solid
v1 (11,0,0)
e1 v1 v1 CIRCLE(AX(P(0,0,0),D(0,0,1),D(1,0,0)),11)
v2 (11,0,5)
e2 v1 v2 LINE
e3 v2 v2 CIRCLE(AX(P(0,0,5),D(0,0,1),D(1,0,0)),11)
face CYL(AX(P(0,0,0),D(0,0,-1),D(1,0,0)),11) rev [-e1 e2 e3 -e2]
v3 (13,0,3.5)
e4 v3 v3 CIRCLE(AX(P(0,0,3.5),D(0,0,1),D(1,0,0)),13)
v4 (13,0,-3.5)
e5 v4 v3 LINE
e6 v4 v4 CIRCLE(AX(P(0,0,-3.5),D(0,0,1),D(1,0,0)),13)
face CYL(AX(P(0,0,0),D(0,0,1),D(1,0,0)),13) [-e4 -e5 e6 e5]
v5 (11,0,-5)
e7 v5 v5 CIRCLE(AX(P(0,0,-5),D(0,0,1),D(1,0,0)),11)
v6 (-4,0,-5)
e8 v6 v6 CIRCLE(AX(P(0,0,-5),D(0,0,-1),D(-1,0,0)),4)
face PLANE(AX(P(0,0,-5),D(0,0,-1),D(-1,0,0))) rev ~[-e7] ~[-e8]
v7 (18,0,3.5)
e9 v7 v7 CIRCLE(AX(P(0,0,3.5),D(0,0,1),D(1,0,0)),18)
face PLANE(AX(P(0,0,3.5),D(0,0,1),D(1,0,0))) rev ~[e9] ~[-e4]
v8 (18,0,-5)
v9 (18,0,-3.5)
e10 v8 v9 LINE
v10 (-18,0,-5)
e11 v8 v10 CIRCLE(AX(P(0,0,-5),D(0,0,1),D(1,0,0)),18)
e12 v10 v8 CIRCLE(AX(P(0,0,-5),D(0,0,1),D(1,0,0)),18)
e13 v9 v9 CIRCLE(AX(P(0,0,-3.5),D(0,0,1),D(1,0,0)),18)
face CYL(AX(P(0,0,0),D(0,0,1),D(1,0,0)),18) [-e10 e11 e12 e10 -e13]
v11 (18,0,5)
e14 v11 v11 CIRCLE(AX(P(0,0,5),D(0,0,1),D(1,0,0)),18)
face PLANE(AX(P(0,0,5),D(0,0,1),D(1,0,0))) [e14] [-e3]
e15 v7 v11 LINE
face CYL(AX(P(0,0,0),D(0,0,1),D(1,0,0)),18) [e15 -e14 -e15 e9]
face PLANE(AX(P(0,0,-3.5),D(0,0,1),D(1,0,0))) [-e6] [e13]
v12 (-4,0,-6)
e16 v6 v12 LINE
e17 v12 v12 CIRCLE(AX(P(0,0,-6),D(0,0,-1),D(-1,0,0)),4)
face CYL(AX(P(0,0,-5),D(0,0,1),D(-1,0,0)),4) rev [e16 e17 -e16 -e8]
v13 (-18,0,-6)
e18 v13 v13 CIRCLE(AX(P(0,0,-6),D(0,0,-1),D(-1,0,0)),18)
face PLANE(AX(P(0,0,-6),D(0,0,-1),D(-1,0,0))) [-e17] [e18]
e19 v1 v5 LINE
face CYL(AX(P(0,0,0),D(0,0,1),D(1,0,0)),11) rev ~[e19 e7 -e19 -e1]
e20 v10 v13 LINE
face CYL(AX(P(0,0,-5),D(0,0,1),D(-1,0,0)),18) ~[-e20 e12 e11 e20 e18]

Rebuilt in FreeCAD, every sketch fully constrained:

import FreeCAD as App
import Part
import Sketcher

V = App.Vector
Q = App.Units.Quantity

doc = App.newDocument("Part")
body = doc.addObject("PartDesign::Body", "Body")

# Sketch on XY plane
sketch1 = body.newObject("Sketcher::SketchObject", "Sketch")
sketch1.AttachmentSupport = (doc.getObject("XY_Plane"), [""])
sketch1.MapMode = "FlatFace"
sketch1.addGeometry([
    Part.Circle(V(0, 0, 0), V(0, 0, 1), 18),
    Part.Circle(V(0, 0, 0), V(0, 0, 1), 11),
], False)
sketch1.addConstraint([
    Sketcher.Constraint("Coincident", 0, 3, -1, 1),
    Sketcher.Constraint("Coincident", 1, 3, -1, 1),
    Sketcher.Constraint("Diameter", 1, Q("22 mm")),
    Sketcher.Constraint("Diameter", 0, Q("36 mm")),
])
pad1 = body.newObject("PartDesign::Pad", "Pad")
pad1.Profile = sketch1
pad1.Length = 10
pad1.Midplane = True

# Sketch on XY plane
sketch2 = body.newObject("Sketcher::SketchObject", "Sketch001")
sketch2.AttachmentSupport = (doc.getObject("XY_Plane"), [""])
sketch2.MapMode = "FlatFace"
sketch2.addGeometry([
    Part.Circle(V(0, 0, 0), V(0, 0, 1), 18),
    Part.Circle(V(0, 0, 0), V(0, 0, 1), 13),
], False)
sketch2.addConstraint([
    Sketcher.Constraint("Coincident", 0, 3, -1, 1),
    Sketcher.Constraint("Coincident", 1, 3, -1, 1),
    Sketcher.Constraint("Diameter", 0, Q("36 mm")),
    Sketcher.Constraint("Diameter", 1, Q("26 mm")),
])
pocket1 = body.newObject("PartDesign::Pocket", "Pocket")
pocket1.Profile = sketch2
pocket1.Length = 7
pocket1.Midplane = True

# Sketch on XY plane
sketch3 = body.newObject("Sketcher::SketchObject", "Sketch002")
sketch3.AttachmentSupport = (doc.getObject("XY_Plane"), [""])
sketch3.MapMode = "FlatFace"
sketch3.AttachmentOffset = App.Placement(V(0, 0, -5), App.Rotation())
sketch3.addGeometry([
    Part.Circle(V(0, 0, 0), V(0, 0, 1), 18),
    Part.Circle(V(0, 0, 0), V(0, 0, 1), 4),
], False)
sketch3.addConstraint([
    Sketcher.Constraint("Coincident", 0, 3, -1, 1),
    Sketcher.Constraint("Coincident", 1, 3, -1, 1),
    Sketcher.Constraint("Diameter", 1, Q("8 mm")),
    Sketcher.Constraint("Diameter", 0, Q("36 mm")),
])
pad2 = body.newObject("PartDesign::Pad", "Pad001")
pad2.Profile = sketch3
pad2.Length = 1
pad2.Reversed = True

doc.recompute()
